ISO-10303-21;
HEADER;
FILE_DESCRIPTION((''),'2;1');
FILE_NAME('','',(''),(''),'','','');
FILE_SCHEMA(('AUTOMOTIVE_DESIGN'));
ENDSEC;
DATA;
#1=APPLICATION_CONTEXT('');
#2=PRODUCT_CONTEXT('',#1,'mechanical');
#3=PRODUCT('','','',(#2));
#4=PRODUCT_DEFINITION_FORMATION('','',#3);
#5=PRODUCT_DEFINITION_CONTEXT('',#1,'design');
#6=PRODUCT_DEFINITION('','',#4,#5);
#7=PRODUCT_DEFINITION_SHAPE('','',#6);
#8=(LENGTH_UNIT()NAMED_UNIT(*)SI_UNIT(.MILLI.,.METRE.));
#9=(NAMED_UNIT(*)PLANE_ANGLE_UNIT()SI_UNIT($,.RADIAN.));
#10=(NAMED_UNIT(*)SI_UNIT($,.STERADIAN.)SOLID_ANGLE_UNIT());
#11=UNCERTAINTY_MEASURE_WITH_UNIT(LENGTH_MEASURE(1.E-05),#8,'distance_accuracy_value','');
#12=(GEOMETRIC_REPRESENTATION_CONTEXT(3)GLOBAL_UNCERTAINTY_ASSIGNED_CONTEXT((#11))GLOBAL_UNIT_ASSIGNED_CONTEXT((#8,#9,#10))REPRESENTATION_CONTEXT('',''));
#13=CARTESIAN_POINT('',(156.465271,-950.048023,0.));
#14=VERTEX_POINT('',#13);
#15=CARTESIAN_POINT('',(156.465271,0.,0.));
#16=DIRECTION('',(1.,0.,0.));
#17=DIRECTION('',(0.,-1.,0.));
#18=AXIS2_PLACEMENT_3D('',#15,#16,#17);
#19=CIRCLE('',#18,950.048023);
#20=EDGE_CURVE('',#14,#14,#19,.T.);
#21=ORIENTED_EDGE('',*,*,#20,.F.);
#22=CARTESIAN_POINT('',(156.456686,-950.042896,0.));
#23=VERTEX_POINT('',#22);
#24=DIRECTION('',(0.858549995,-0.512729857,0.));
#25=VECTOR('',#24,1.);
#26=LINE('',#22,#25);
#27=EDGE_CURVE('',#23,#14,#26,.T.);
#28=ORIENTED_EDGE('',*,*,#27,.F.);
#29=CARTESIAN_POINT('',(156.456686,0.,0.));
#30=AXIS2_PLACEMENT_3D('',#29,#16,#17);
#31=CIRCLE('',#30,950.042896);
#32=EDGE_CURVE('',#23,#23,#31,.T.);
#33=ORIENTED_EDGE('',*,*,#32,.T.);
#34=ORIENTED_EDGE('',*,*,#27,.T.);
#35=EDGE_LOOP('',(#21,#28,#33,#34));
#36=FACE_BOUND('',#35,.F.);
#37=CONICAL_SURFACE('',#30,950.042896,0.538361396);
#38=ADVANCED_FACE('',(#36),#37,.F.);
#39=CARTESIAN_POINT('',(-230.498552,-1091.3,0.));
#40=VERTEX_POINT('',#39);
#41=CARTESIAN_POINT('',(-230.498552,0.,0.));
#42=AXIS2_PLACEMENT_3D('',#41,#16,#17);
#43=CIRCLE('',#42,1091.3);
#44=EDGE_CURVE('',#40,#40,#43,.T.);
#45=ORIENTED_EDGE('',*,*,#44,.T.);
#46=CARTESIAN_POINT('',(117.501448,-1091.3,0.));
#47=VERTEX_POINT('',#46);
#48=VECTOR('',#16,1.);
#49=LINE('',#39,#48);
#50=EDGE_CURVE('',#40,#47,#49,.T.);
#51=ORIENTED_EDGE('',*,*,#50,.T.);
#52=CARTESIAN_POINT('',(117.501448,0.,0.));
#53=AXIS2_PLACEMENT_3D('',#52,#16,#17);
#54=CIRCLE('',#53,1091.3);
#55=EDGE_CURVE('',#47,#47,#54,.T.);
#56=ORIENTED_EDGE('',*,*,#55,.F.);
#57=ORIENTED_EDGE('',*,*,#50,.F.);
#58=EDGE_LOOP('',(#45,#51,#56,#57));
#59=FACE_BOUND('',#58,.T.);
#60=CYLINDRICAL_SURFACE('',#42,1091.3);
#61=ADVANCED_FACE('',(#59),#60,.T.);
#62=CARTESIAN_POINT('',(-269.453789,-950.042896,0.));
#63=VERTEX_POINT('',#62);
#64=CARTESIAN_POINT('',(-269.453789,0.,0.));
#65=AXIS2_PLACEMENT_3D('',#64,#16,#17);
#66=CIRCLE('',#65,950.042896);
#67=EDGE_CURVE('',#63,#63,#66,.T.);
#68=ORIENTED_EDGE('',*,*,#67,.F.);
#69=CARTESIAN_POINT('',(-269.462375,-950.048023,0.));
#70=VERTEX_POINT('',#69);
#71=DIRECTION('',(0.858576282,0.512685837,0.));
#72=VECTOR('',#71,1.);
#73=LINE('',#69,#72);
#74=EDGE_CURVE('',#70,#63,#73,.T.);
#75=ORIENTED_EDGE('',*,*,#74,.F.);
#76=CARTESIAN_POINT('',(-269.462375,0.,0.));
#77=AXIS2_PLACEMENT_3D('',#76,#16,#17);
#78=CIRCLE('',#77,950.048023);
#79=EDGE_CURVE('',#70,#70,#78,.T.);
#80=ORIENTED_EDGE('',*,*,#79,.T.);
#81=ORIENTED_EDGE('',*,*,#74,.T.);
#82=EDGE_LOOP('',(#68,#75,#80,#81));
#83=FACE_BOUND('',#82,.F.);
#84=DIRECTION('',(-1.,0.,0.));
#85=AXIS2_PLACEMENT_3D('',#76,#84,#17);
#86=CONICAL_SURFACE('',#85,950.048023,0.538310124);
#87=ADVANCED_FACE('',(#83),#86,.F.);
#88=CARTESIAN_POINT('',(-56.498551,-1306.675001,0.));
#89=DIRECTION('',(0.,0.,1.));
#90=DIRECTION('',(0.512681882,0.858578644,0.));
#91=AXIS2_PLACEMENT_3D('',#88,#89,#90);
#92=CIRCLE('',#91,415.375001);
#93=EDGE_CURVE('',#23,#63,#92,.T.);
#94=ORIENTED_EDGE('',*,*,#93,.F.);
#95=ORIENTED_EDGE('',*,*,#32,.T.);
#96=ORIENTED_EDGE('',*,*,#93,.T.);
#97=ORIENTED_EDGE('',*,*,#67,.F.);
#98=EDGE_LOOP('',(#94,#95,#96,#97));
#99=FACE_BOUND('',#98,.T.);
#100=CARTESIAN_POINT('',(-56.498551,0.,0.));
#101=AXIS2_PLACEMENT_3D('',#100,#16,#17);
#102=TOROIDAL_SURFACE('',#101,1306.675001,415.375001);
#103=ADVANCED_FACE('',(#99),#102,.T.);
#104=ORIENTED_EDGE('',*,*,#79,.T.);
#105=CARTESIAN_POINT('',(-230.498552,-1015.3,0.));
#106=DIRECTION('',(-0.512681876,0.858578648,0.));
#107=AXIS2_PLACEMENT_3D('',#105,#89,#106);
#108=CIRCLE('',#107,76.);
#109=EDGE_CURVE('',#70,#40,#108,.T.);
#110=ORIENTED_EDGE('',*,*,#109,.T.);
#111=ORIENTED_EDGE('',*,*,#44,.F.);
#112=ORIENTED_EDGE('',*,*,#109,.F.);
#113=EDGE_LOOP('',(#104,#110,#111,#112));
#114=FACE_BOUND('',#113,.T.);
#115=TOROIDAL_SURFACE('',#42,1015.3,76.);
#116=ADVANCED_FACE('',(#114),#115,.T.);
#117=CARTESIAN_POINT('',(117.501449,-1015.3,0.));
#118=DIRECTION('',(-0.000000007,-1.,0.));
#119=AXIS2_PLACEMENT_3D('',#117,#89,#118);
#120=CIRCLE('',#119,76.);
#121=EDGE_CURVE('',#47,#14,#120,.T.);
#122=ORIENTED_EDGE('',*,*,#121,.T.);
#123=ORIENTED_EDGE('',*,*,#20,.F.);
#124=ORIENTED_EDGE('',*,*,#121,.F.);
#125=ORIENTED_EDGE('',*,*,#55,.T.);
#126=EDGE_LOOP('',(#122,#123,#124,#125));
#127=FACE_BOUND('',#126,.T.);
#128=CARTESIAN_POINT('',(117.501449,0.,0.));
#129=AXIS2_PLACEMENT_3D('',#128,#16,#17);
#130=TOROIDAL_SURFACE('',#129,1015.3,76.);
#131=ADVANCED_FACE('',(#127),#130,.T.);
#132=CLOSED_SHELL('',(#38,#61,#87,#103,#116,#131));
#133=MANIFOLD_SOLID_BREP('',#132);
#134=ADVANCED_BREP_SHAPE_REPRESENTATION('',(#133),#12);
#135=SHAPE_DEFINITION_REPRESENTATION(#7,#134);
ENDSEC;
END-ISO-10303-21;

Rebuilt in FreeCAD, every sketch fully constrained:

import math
import FreeCAD as App
import Part
import Sketcher
from FreeCAD import Vector

doc = App.newDocument("Part")
body = doc.addObject("PartDesign::Body", "Body")

sketch1 = body.newObject("Sketcher::SketchObject", "Sketch")
sketch1.AttachmentSupport = (doc.getObject("XY_Plane"), [""])
sketch1.MapMode = "FlatFace"
sketch1.addGeometry([
    Part.LineSegment(Vector(-230.498552, -1091.3, 0), Vector(117.501448, -1091.3, 0)),
    Part.ArcOfCircle(Part.Circle(Vector(117.501448, -1015.3, 0), Vector(0, 0, 1), 76), math.radians(-90), math.radians(59.157366)),
    Part.LineSegment(Vector(156.465271, -950.048023, 0), Vector(156.456686, -950.042896, 0)),
    Part.ArcOfCircle(Part.Circle(Vector(-56.498551, -1306.675001, 0), Vector(0, 0, 1), 415.375001), math.radians(59.157366), math.radians(120.842634)),
    Part.LineSegment(Vector(-269.453789, -950.042896, 0), Vector(-269.462375, -950.048023, 0)),
    Part.ArcOfCircle(Part.Circle(Vector(-230.498552, -1015.3, 0), Vector(0, 0, 1), 76), math.radians(120.842634), math.radians(270)),
], False)
sketch1.addConstraint([
    Sketcher.Constraint("Tangent", 0, 2, 1, 1),
    Sketcher.Constraint("Coincident", 1, 2, 2, 1),
    Sketcher.Constraint("Coincident", 2, 2, 3, 1),
    Sketcher.Constraint("Coincident", 3, 2, 4, 1),
    Sketcher.Constraint("Coincident", 4, 2, 5, 1),
    Sketcher.Constraint("Tangent", 5, 2, 0, 1),
    Sketcher.Constraint("Horizontal", 0),
    Sketcher.Constraint("Equal", 1, 5),
    Sketcher.Constraint("Horizontal", 2, 2, 3, 2),
    Sketcher.Constraint("Horizontal", 1, 2, 4, 2),
    Sketcher.Constraint("Equal", 2, 4),
    Sketcher.Constraint("Radius", 1, 76.0),
    Sketcher.Constraint("DistanceX", 0, 1, 0, 2, 348.0),
    Sketcher.Constraint("Radius", 3, 415.375001),
    Sketcher.Constraint("DistanceY", 1, 3, -1, 1, 1015.3),
    Sketcher.Constraint("Distance", 2, 0.009999),
    Sketcher.Constraint("DistanceY", 3, 3, -1, 1, 1306.675001),
    Sketcher.Constraint("DistanceX", -1, 1, 1, 3, 117.501448),
    Sketcher.Constraint("DistanceX", -1, 1, 1, 2, 156.465271),
])
revolution = body.newObject("PartDesign::Revolution", "Revolution")
revolution.Profile = sketch1
revolution.ReferenceAxis = (sketch1, ["H_Axis"])
revolution.Angle = 360

doc.recompute()
